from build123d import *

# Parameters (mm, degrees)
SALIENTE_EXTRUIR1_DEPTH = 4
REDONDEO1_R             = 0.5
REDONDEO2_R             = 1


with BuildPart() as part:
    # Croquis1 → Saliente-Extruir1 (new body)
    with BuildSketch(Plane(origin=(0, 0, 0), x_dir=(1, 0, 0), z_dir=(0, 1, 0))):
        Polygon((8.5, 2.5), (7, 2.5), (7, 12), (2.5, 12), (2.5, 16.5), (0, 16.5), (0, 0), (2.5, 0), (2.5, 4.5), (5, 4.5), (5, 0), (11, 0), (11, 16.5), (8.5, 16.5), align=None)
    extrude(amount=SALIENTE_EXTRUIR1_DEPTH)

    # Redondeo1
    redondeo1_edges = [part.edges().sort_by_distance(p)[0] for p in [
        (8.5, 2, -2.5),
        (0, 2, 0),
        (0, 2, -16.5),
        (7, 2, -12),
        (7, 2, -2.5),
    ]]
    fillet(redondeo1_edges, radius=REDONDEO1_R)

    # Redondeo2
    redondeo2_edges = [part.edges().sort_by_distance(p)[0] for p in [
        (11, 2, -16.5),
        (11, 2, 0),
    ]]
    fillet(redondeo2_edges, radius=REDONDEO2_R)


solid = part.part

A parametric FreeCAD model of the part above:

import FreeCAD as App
import Part
import Sketcher
Q = App.Units.Quantity


def edges_at(feature, points):
    """Names of the edges that pass closest to the given points."""
    edges = feature.Shape.Edges
    near = lambda p: min(range(len(edges)), key=lambda i: edges[i].distToShape(Part.Vertex(*p))[0])
    return sorted({f"Edge{near(p) + 1}" for p in points})


def add_polygon(sketch, points):
    """Adds a closed chain of lines whose ends are joined by coincident constraints."""
    first, n = sketch.GeometryCount, len(points)
    for a, b in zip(points, points[1:] + points[:1]):
        sketch.addGeometry(Part.LineSegment(App.Vector(*a, 0), App.Vector(*b, 0)), False)
    for i in range(n):
        sketch.addConstraint(Sketcher.Constraint("Coincident", first + i, 2, first + (i + 1) % n, 1))

doc = App.newDocument("Part")
params = doc.addObject("Spreadsheet::Sheet", "Params")
for row, (alias, value) in enumerate([
    ("sketch1_width", "6 mm"),
    ("sketch1_height", "14 mm"),
    ("sketch1_width2", "1.5 mm"),
    ("sketch1_width3", "2.5 mm"),
    ("sketch1_height2", "16.5 mm"),
    ("pad1_length", "4 mm"),
    ("fillet_radius", "0.5 mm"),
    ("fillet2_radius", "1 mm"),
], start=1):
    params.set(f"A{row}", alias)
    params.set(f"B{row}", "=" + value)
    params.setAlias(f"B{row}", alias)

body = doc.addObject("PartDesign::Body", "Body")

sketch1 = body.newObject("Sketcher::SketchObject", "Sketch")
sketch1.AttachmentSupport = (doc.getObject("XZ_Plane"), [""])
sketch1.MapMode = "FlatFace"
add_polygon(sketch1, [(8.5, -2.5), (7, -2.5), (7, -12), (2.5, -12), (2.5, -16.5), (0, -16.5), (0, 0), (2.5, 0), (2.5, -4.5), (5, -4.5), (5, 0), (11, 0), (11, -16.5), (8.5, -16.5)])
sketch1.addConstraint([
    Sketcher.Constraint("Horizontal", 0),
    Sketcher.Constraint("Vertical", 1),
    Sketcher.Constraint("Horizontal", 2),
    Sketcher.Constraint("Vertical", 3),
    Sketcher.Constraint("Horizontal", 4),
    Sketcher.Constraint("Vertical", 5),
    Sketcher.Constraint("Horizontal", 6),
    Sketcher.Constraint("Vertical", 7),
    Sketcher.Constraint("Horizontal", 8),
    Sketcher.Constraint("Vertical", 9),
    Sketcher.Constraint("Horizontal", 10),
    Sketcher.Constraint("Vertical", 11),
    Sketcher.Constraint("Horizontal", 12),
    Sketcher.Constraint("Vertical", 13),
    Sketcher.Constraint("Coincident", 5, 2, -1, 1),
    Sketcher.Constraint("PointOnObject", 9, 2, -1),
    Sketcher.Constraint("Horizontal", 4, 2, 11, 2),
    Sketcher.Constraint("Vertical", 3, 2, 6, 2),
    Sketcher.Constraint("Equal", 6, 8),
    Sketcher.Constraint("Equal", 8, 12),
    Sketcher.Constraint("Equal", 2, 3),
    Sketcher.Constraint("Equal", 3, 7),
    Sketcher.Constraint("DistanceX", 10, 1, 10, 2, Q("6 mm")),
    Sketcher.Constraint("DistanceY", 13, 1, 13, 2, Q("14 mm")),
    Sketcher.Constraint("DistanceX", 0, 2, 0, 1, Q("1.5 mm")),
    Sketcher.Constraint("DistanceX", 4, 2, 4, 1, Q("2.5 mm")),
    Sketcher.Constraint("DistanceY", 5, 1, 5, 2, Q("16.5 mm")),
])
sketch1.setExpression("Constraints[36]", "Params.sketch1_width")
sketch1.setExpression("Constraints[37]", "Params.sketch1_height")
sketch1.setExpression("Constraints[38]", "Params.sketch1_width2")
sketch1.setExpression("Constraints[39]", "Params.sketch1_width3")
sketch1.setExpression("Constraints[40]", "Params.sketch1_height2")
pad1 = body.newObject("PartDesign::Pad", "Pad")
pad1.Profile = sketch1
pad1.setExpression("Length", "Params.pad1_length")
pad1.Reversed = True
doc.recompute()

fillet = body.newObject("PartDesign::Fillet", "Fillet")
fillet.Base = (pad1, edges_at(pad1, [
    (8.5, 2, -2.5),
    (0, 2, 0),
    (0, 2, -16.5),
    (7, 2, -12),
    (7, 2, -2.5),
]))
fillet.setExpression("Radius", "Params.fillet_radius")
doc.recompute()

fillet2 = body.newObject("PartDesign::Fillet", "Fillet001")
fillet2.Base = (fillet, edges_at(fillet, [(11, 2, -16.5), (11, 2, 0)]))
fillet2.setExpression("Radius", "Params.fillet2_radius")

doc.recompute()
